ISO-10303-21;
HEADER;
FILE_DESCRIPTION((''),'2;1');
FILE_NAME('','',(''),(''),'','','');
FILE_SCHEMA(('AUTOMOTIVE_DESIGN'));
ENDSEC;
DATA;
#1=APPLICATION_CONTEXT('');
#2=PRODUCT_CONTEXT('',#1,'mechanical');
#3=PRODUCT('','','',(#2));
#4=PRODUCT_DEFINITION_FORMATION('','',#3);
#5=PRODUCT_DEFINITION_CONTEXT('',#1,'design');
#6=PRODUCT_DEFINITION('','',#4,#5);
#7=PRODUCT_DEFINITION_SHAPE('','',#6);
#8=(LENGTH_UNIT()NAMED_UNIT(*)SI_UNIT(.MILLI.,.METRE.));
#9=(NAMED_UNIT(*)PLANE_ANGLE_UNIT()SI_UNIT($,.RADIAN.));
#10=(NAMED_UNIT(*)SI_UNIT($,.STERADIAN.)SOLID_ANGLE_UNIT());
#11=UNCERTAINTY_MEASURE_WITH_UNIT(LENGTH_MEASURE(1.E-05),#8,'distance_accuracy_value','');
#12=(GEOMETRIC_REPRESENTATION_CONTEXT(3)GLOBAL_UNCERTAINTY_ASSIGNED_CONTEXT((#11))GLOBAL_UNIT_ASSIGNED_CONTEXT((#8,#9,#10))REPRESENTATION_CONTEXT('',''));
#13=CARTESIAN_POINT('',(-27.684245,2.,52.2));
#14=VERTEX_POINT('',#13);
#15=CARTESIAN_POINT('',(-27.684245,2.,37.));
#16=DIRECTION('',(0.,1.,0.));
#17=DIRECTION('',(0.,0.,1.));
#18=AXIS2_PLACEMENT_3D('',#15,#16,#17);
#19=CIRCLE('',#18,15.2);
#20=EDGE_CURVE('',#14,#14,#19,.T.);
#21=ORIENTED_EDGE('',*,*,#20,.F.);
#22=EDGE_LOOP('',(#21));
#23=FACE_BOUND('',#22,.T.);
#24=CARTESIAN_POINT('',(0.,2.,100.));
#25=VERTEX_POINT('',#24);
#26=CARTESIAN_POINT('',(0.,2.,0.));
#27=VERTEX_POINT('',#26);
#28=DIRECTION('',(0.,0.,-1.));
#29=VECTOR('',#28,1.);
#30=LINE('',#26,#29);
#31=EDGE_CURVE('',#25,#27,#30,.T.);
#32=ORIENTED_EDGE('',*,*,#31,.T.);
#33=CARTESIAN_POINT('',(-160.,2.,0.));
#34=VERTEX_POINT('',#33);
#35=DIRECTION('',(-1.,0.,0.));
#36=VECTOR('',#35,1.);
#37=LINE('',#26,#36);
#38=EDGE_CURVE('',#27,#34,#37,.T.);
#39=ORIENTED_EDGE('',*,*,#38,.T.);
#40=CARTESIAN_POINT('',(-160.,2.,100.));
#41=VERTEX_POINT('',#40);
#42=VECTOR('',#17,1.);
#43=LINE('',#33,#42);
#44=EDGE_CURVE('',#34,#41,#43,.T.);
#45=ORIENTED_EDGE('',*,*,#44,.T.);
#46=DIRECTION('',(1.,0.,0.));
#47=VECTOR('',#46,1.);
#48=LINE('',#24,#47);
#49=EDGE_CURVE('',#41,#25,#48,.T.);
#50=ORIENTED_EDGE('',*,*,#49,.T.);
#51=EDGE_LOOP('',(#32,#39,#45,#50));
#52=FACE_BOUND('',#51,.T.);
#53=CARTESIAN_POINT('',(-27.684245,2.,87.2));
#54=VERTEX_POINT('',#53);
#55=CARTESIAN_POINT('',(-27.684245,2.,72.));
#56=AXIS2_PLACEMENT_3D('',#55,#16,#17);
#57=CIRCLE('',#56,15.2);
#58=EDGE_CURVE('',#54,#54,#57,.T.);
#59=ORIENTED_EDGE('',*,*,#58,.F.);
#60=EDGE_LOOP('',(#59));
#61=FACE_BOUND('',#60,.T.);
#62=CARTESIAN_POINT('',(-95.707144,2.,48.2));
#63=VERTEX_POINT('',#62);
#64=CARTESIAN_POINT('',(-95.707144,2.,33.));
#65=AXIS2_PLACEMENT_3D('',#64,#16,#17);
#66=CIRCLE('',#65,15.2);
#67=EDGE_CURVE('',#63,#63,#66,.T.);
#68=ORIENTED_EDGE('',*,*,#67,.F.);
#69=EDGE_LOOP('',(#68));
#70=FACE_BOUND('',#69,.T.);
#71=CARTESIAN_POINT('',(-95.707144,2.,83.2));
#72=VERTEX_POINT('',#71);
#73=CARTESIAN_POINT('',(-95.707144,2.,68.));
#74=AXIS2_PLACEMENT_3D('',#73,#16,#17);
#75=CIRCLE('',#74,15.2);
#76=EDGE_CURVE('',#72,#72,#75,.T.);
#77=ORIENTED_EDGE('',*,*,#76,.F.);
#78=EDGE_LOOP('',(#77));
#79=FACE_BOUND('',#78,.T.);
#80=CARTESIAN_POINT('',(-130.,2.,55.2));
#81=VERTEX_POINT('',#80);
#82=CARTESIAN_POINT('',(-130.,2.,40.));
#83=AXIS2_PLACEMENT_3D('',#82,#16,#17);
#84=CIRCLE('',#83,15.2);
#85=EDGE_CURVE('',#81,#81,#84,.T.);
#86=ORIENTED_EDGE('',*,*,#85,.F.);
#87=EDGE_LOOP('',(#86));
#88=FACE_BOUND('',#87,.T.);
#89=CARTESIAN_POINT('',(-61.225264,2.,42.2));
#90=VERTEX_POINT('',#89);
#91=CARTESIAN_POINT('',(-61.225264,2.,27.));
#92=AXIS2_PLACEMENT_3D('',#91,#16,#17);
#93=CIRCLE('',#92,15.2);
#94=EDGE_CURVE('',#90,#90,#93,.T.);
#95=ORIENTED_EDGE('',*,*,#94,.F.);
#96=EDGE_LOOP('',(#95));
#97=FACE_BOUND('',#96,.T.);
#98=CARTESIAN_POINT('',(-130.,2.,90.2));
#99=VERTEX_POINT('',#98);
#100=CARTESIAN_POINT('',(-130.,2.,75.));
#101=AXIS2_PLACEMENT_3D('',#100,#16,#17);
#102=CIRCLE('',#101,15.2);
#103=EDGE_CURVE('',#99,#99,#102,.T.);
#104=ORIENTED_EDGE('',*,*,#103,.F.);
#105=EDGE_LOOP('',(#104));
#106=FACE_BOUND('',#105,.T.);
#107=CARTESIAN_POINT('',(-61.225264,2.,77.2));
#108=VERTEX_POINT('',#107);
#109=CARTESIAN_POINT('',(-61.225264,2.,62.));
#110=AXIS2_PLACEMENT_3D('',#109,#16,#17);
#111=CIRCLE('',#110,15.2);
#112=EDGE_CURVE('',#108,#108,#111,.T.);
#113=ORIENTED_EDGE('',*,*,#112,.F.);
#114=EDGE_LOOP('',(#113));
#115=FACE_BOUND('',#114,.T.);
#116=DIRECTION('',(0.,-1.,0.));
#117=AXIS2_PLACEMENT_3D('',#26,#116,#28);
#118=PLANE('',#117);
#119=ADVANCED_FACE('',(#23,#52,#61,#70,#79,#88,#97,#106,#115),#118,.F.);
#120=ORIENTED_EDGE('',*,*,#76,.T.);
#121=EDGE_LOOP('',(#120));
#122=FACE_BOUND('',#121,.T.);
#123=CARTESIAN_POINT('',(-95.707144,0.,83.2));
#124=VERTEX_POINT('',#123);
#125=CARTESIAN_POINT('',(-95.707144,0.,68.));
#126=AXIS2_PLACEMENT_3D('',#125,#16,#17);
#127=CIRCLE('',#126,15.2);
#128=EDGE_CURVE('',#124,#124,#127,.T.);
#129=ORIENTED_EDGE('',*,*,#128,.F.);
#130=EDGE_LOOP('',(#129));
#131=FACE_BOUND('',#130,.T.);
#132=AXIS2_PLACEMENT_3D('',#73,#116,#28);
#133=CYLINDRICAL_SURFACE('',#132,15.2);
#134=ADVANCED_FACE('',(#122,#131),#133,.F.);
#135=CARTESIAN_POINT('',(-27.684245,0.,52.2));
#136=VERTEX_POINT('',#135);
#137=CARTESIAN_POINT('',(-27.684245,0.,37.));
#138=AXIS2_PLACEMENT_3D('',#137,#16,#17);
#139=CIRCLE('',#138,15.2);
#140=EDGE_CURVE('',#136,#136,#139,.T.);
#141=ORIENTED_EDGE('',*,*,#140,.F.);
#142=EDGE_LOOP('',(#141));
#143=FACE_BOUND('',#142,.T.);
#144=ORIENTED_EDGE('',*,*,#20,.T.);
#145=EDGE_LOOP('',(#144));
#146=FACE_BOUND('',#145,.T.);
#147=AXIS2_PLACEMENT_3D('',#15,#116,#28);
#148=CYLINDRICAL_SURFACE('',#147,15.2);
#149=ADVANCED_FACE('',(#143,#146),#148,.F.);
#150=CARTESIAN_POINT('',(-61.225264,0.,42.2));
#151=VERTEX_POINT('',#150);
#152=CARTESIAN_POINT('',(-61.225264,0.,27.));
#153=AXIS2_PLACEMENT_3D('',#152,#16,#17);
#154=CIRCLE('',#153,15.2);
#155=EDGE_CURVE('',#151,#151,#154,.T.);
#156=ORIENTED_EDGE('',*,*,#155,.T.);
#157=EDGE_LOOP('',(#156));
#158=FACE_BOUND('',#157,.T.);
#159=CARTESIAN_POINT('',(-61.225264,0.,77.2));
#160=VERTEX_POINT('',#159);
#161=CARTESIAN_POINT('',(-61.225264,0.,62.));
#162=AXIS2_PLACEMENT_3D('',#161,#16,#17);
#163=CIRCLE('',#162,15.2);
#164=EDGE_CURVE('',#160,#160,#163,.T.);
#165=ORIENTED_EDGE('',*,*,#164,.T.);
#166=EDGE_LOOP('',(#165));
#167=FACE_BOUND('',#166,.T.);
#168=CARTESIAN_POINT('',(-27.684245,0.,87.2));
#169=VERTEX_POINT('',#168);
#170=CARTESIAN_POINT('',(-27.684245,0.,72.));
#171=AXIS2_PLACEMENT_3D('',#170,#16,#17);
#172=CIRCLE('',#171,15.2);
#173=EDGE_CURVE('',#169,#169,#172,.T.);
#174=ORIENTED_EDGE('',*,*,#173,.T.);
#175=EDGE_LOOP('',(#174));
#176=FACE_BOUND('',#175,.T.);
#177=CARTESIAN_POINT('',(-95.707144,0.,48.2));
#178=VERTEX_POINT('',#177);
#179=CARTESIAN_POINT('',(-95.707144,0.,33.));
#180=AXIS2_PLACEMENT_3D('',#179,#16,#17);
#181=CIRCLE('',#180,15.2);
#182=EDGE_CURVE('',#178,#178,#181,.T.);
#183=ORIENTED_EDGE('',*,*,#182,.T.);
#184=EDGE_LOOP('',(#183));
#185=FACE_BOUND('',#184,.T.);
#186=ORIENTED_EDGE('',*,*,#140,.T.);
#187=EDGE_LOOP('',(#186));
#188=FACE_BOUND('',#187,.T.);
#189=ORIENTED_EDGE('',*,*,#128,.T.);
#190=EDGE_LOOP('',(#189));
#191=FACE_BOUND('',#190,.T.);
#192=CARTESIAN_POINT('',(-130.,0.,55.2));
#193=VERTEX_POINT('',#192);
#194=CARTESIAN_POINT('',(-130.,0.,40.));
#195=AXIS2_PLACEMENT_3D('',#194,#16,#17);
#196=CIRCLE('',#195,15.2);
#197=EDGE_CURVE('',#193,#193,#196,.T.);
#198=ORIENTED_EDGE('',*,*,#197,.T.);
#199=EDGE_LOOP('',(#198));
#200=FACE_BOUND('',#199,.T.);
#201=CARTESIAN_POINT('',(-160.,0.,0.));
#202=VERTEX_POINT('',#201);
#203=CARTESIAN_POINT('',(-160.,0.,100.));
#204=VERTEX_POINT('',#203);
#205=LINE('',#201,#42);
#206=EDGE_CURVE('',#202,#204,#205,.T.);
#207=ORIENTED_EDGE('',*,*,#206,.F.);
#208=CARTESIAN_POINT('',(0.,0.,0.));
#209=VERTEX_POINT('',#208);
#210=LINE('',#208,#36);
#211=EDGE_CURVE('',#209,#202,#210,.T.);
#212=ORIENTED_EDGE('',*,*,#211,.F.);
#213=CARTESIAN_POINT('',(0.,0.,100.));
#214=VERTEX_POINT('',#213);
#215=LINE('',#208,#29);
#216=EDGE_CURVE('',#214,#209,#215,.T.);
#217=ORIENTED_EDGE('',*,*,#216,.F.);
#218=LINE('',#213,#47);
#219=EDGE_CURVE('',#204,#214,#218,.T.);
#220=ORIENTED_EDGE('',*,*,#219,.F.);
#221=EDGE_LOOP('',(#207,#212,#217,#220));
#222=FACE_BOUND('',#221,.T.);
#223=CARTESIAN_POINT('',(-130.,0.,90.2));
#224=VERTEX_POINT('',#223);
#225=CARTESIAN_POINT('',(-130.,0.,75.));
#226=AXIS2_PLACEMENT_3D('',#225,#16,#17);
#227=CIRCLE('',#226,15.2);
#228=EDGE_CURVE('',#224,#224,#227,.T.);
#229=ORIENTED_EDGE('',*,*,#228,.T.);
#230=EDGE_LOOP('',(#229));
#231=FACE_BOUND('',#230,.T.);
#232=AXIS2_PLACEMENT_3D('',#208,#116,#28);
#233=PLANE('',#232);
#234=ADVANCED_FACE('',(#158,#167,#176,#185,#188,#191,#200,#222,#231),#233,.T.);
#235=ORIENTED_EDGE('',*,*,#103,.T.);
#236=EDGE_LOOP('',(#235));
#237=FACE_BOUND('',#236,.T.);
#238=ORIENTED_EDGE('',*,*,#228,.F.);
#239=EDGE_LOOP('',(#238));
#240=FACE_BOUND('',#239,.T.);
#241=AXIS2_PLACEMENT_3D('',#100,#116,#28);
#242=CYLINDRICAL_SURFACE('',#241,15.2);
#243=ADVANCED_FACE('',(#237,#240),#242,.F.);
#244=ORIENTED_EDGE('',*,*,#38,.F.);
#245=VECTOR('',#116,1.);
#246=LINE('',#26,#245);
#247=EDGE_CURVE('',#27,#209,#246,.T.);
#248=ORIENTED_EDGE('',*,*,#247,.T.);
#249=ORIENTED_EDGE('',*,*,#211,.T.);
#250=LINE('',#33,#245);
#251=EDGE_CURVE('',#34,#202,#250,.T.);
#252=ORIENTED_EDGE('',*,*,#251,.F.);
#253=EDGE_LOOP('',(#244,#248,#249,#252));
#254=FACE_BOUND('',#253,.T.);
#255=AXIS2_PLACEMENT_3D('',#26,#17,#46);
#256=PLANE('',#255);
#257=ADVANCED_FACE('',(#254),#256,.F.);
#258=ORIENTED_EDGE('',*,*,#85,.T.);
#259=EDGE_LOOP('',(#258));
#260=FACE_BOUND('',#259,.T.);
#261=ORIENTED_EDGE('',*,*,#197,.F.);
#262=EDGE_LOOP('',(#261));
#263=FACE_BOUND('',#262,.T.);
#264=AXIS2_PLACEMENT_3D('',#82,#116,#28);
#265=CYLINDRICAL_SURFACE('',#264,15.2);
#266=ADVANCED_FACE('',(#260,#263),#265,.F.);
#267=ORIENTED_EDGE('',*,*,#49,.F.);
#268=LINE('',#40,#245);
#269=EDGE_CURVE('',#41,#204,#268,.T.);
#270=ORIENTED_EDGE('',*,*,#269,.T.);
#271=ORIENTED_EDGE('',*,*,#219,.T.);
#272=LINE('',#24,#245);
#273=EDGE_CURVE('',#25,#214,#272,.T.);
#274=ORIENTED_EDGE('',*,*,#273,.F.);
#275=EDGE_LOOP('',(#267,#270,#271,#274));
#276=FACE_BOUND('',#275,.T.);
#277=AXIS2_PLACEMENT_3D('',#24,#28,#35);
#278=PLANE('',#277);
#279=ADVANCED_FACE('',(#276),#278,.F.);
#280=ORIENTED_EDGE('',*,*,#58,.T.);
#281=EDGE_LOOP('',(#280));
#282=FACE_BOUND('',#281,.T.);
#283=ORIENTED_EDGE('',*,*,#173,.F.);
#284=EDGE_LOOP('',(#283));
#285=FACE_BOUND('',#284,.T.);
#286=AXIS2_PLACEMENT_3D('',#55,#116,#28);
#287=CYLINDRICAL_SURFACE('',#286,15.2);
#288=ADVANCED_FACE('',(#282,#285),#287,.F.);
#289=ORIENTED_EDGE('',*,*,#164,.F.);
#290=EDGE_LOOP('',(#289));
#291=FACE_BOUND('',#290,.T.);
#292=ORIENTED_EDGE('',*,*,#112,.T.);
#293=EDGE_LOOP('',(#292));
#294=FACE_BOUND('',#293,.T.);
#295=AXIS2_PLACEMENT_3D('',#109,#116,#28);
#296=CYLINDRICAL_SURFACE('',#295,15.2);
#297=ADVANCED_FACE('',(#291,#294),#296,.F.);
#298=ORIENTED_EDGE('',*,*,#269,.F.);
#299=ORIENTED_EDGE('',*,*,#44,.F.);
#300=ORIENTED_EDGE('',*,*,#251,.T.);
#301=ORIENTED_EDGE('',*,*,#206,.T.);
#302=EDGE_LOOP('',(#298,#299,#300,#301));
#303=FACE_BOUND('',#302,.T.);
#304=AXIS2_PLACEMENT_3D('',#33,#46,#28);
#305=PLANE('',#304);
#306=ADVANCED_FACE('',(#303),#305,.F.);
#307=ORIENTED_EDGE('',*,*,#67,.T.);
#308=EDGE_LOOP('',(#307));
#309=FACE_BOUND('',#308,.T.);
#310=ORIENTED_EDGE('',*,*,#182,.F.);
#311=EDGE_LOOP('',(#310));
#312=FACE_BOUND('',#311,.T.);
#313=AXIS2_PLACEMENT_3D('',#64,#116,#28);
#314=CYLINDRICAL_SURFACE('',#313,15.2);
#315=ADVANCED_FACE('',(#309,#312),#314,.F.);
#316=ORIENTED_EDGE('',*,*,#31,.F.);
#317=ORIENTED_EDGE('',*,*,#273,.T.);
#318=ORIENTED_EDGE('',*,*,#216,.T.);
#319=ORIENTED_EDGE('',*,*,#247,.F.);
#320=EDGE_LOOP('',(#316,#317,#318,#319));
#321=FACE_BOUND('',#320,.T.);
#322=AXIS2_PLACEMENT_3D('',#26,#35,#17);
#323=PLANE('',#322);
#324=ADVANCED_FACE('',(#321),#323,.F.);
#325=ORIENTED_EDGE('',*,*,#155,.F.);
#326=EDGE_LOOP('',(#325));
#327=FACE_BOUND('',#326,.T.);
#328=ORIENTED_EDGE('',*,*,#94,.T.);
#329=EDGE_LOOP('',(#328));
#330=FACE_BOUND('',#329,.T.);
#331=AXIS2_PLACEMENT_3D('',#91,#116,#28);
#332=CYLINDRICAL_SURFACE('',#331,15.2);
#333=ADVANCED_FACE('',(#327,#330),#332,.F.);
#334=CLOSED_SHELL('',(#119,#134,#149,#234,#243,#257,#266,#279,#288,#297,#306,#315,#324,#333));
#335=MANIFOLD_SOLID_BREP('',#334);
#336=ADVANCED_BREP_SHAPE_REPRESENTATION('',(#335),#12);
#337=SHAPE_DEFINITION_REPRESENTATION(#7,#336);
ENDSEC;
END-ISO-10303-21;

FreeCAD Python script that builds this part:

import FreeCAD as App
import Part
import Sketcher
from FreeCAD import Vector
Q = App.Units.Quantity


def add_polygon(sketch, points):
    """Adds a closed chain of lines whose ends are joined by coincident constraints."""
    first, n = sketch.GeometryCount, len(points)
    for a, b in zip(points, points[1:] + points[:1]):
        sketch.addGeometry(Part.LineSegment(App.Vector(*a, 0), App.Vector(*b, 0)), False)
    for i in range(n):
        sketch.addConstraint(Sketcher.Constraint("Coincident", first + i, 2, first + (i + 1) % n, 1))

doc = App.newDocument("Part")
body = doc.addObject("PartDesign::Body", "Body")

# Sketch on XZ plane
sketch1 = doc.addObject("Sketcher::SketchObject", "Sketch")
body.addObject(sketch1)
sketch1.AttachmentSupport = (doc.XZ_Plane, [""])
sketch1.MapMode = "FlatFace"
add_polygon(sketch1, [(-160, 0), (-160, 100), (0, 100), (0, 0)])  # lines 0-3
sketch1.addGeometry(Part.Circle(Vector(-130, 75, 0), Vector(0, 0, 1), 15), False)  # 4
sketch1.addGeometry(Part.Circle(Vector(-96, 68, 0), Vector(0, 0, 1), 15), False)  # 5
sketch1.addGeometry(Part.Circle(Vector(-28, 72, 0), Vector(0, 0, 1), 15), False)  # 6
sketch1.addGeometry(Part.Circle(Vector(-61, 62, 0), Vector(0, 0, 1), 15), False)  # 7
sketch1.addGeometry(Part.Circle(Vector(-130, 40, 0), Vector(0, 0, 1), 15), False)  # 8
sketch1.addGeometry(Part.Circle(Vector(-96, 33, 0), Vector(0, 0, 1), 15), False)  # 9
sketch1.addGeometry(Part.Circle(Vector(-28, 37, 0), Vector(0, 0, 1), 15), False)  # 10
sketch1.addGeometry(Part.Circle(Vector(-61, 27, 0), Vector(0, 0, 1), 15), False)  # 11
sketch1.addConstraint([
    Sketcher.Constraint("Vertical", 0),
    Sketcher.Constraint("Horizontal", 1),
    Sketcher.Constraint("Vertical", 2),
    Sketcher.Constraint("Horizontal", 3),
    Sketcher.Constraint("Coincident", 2, 2, -1, 1),
    Sketcher.Constraint("Equal", 4, 5),
    Sketcher.Constraint("Equal", 5, 6),
    Sketcher.Constraint("Equal", 6, 7),
    Sketcher.Constraint("Equal", 7, 8),
    Sketcher.Constraint("Equal", 8, 9),
    Sketcher.Constraint("Equal", 9, 10),
    Sketcher.Constraint("Equal", 10, 11),
    Sketcher.Constraint("Vertical", 4, 3, 8, 3),
    Sketcher.Constraint("Vertical", 5, 3, 9, 3),
    Sketcher.Constraint("Vertical", 6, 3, 10, 3),
    Sketcher.Constraint("Vertical", 7, 3, 11, 3),
    Sketcher.Constraint("Diameter", 4, Q("30.4 mm")),
    Sketcher.Constraint("DistanceX", 1, 1, 1, 2, Q("160 mm")),
    Sketcher.Constraint("DistanceY", 0, 1, 0, 2, Q("100 mm")),
    Sketcher.Constraint("DistanceX", 4, 3, -1, 1, Q("130 mm")),
    Sketcher.Constraint("DistanceY", -1, 1, 4, 3, Q("75 mm")),
    Sketcher.Constraint("DistanceY", -1, 1, 5, 3, Q("68 mm")),
    Sketcher.Constraint("DistanceY", -1, 1, 6, 3, Q("72 mm")),
    Sketcher.Constraint("DistanceY", -1, 1, 7, 3, Q("62 mm")),
    Sketcher.Constraint("DistanceY", -1, 1, 8, 3, Q("40 mm")),
    Sketcher.Constraint("DistanceY", -1, 1, 9, 3, Q("33 mm")),
    Sketcher.Constraint("DistanceY", -1, 1, 10, 3, Q("37 mm")),
    Sketcher.Constraint("DistanceY", -1, 1, 11, 3, Q("27 mm")),
    Sketcher.Constraint("DistanceX", 5, 3, 6, 3, Q("68.022899 mm")),
    Sketcher.Constraint("DistanceX", 5, 3, 7, 3, Q("34.481879 mm")),
    Sketcher.Constraint("DistanceX", 5, 3, -1, 1, Q("95.707144 mm")),
])
pad1 = doc.addObject("PartDesign::Pad", "Pad")
body.addObject(pad1)
pad1.Profile = sketch1
pad1.Length = 2
pad1.Reversed = True

doc.recompute()
